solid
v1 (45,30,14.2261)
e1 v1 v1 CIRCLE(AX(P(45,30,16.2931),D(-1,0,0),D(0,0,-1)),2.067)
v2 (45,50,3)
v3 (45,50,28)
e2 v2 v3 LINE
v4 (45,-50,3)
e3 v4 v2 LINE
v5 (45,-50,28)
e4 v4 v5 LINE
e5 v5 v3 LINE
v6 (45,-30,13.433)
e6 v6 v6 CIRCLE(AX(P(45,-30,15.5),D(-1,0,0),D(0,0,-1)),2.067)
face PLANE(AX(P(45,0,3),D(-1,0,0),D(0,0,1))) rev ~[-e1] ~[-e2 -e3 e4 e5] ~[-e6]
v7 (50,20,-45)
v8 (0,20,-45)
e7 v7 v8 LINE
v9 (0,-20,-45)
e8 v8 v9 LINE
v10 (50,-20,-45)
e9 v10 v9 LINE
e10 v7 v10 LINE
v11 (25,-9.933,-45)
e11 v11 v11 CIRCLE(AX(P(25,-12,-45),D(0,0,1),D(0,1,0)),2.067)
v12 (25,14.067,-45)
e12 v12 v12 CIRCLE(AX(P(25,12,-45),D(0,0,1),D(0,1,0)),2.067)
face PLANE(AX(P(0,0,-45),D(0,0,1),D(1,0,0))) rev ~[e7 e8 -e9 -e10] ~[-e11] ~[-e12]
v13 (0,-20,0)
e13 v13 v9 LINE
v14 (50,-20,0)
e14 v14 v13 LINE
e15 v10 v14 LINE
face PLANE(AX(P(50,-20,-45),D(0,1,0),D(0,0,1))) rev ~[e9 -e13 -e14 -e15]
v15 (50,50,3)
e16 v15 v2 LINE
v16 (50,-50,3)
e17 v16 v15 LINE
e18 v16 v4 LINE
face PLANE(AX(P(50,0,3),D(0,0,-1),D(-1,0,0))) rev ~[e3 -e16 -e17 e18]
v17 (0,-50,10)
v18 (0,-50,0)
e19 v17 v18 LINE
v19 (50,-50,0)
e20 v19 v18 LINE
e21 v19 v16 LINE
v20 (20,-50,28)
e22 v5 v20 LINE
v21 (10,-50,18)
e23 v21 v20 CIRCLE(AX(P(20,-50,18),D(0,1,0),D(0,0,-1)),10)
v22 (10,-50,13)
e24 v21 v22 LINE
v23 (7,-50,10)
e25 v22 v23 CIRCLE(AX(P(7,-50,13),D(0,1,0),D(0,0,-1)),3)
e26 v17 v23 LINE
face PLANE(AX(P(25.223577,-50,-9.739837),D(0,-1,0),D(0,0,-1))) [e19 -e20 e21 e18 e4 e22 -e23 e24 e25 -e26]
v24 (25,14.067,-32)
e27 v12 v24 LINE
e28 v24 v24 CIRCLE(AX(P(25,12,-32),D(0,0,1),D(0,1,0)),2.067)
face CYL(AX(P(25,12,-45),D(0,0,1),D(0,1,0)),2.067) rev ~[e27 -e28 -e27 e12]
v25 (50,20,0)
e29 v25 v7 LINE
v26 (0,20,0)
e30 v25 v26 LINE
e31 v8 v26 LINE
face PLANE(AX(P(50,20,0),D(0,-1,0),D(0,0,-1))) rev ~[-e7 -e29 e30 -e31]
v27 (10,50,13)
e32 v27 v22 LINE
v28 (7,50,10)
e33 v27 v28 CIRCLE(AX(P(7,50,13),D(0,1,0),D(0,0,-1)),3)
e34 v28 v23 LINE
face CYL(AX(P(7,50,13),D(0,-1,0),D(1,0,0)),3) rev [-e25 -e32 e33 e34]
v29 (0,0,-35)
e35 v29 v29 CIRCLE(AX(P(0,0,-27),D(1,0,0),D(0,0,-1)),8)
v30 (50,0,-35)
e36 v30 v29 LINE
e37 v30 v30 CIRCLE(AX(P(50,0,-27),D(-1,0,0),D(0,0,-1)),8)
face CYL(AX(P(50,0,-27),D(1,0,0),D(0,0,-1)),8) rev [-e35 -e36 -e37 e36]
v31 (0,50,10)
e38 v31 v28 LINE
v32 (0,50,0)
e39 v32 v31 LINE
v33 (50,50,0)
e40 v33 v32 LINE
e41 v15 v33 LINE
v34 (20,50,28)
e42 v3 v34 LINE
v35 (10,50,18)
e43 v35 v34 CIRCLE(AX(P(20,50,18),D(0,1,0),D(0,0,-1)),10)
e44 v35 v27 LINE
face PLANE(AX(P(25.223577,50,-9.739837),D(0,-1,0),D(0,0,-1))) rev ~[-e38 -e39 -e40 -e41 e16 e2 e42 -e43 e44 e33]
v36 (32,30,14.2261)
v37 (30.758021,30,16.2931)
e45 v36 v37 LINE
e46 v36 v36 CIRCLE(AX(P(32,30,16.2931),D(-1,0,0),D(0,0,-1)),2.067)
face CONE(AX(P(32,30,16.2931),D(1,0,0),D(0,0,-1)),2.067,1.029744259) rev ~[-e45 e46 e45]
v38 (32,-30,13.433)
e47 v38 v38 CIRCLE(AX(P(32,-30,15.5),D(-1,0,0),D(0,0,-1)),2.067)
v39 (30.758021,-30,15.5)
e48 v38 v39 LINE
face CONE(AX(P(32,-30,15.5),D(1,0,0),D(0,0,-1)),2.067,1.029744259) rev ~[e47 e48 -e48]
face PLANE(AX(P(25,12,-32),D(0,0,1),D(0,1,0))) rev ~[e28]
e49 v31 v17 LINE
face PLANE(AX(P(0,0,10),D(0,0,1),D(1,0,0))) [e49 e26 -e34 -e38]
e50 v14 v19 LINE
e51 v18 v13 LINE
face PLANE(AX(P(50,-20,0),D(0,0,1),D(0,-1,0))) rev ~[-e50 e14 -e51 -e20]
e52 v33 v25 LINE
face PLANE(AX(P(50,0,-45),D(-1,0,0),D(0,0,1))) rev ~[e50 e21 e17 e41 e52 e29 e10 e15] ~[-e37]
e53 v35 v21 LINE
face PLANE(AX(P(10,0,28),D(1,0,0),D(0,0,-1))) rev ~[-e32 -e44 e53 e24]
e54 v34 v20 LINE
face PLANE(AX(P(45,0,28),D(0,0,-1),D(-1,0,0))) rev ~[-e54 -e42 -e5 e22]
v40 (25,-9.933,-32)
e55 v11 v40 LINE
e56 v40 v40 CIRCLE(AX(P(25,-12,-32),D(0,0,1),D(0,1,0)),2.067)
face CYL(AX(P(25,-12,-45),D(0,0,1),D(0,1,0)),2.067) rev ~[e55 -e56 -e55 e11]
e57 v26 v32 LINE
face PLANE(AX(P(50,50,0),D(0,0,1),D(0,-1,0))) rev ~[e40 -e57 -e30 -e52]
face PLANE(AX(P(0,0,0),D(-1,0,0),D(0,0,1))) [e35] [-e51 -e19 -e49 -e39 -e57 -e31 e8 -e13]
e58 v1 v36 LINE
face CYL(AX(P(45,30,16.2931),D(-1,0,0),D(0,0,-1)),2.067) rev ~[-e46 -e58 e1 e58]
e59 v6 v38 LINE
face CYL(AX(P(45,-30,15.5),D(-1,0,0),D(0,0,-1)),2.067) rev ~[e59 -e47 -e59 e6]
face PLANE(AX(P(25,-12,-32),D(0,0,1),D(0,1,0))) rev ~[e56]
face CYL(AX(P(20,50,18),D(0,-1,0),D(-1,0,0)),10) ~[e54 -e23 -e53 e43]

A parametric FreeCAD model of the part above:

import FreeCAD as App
import Part
import Sketcher
from FreeCAD import Vector
Q = App.Units.Quantity


def edges_at(feature, points):
    """Names of the edges that pass closest to the given points."""
    edges = feature.Shape.Edges
    near = lambda p: min(range(len(edges)), key=lambda i: edges[i].distToShape(Part.Vertex(*p))[0])
    return sorted({f"Edge{near(p) + 1}" for p in points})

doc = App.newDocument("Part")
body = doc.addObject("PartDesign::Body", "Body")

# Sketch on XZ plane
sketch1 = body.newObject("Sketcher::SketchObject", "Sketch")
sketch1.AttachmentSupport = (doc.getObject("XZ_Plane"), [""])
sketch1.MapMode = "FlatFace"
sketch1.addGeometry(Part.LineSegment(Vector(45, 3, 0), Vector(45, 28, 0)), False)
sketch1.addGeometry(Part.LineSegment(Vector(45, 28, 0), Vector(10, 28, 0)), False)
sketch1.addGeometry(Part.LineSegment(Vector(10, 28, 0), Vector(10, 10, 0)), False)
sketch1.addGeometry(Part.LineSegment(Vector(10, 10, 0), Vector(0, 10, 0)), False)
sketch1.addGeometry(Part.LineSegment(Vector(0, 10, 0), Vector(0, -45, 0)), False)
sketch1.addGeometry(Part.LineSegment(Vector(0, -45, 0), Vector(50, -45, 0)), False)
sketch1.addGeometry(Part.LineSegment(Vector(50, -45, 0), Vector(50, 3, 0)), False)
sketch1.addGeometry(Part.LineSegment(Vector(50, 3, 0), Vector(45, 3, 0)), False)
sketch1.addConstraint(Sketcher.Constraint("Coincident", 0, 2, 1, 1))
sketch1.addConstraint(Sketcher.Constraint("Coincident", 1, 2, 2, 1))
sketch1.addConstraint(Sketcher.Constraint("Coincident", 2, 2, 3, 1))
sketch1.addConstraint(Sketcher.Constraint("Coincident", 3, 2, 4, 1))
sketch1.addConstraint(Sketcher.Constraint("Coincident", 4, 2, 5, 1))
sketch1.addConstraint(Sketcher.Constraint("Coincident", 5, 2, 6, 1))
sketch1.addConstraint(Sketcher.Constraint("Coincident", 6, 2, 7, 1))
sketch1.addConstraint(Sketcher.Constraint("Coincident", 7, 2, 0, 1))
sketch1.addConstraint(Sketcher.Constraint("Vertical", 0))
sketch1.addConstraint(Sketcher.Constraint("Horizontal", 1))
sketch1.addConstraint(Sketcher.Constraint("Vertical", 2))
sketch1.addConstraint(Sketcher.Constraint("Horizontal", 3))
sketch1.addConstraint(Sketcher.Constraint("Vertical", 4))
sketch1.addConstraint(Sketcher.Constraint("Horizontal", 5))
sketch1.addConstraint(Sketcher.Constraint("Vertical", 6))
sketch1.addConstraint(Sketcher.Constraint("Horizontal", 7))
sketch1.addConstraint(Sketcher.Constraint("PointOnObject", 3, 2, -2))
sketch1.addConstraint(Sketcher.Constraint("DistanceX", 1, 2, 1, 1, Q("35 mm")))
sketch1.addConstraint(Sketcher.Constraint("DistanceX", 3, 2, 3, 1, Q("10 mm")))
sketch1.addConstraint(Sketcher.Constraint("DistanceX", 5, 1, 5, 2, Q("50 mm")))
sketch1.addConstraint(Sketcher.Constraint("DistanceY", 0, 1, 0, 2, Q("25 mm")))
sketch1.addConstraint(Sketcher.Constraint("DistanceY", 2, 2, 2, 1, Q("18 mm")))
sketch1.addConstraint(Sketcher.Constraint("DistanceY", 4, 2, 4, 1, Q("55 mm")))
sketch1.addConstraint(Sketcher.Constraint("DistanceY", -1, 1, 0, 2, Q("28 mm")))
pad1 = body.newObject("PartDesign::Pad", "Pad")
pad1.Profile = sketch1
pad1.Length = 100
pad1.Midplane = True

# Sketch on YZ plane
sketch2 = body.newObject("Sketcher::SketchObject", "Sketch001")
sketch2.AttachmentSupport = (doc.getObject("YZ_Plane"), [""])
sketch2.MapMode = "FlatFace"
sketch2.AttachmentOffset = App.Placement(Vector(0, 0, 50), App.Rotation())
sketch2.addGeometry(Part.Circle(Vector(0, -27, 0), Vector(0, 0, 1), 8), False)
sketch2.addConstraint(Sketcher.Constraint("PointOnObject", 0, 3, -2))
sketch2.addConstraint(Sketcher.Constraint("Diameter", 0, Q("16 mm")))
sketch2.addConstraint(Sketcher.Constraint("DistanceY", 0, 3, -1, 1, Q("27 mm")))
doc.recompute()
hole = body.newObject("PartDesign::Hole", "Hole")
hole.Profile = sketch2
hole.ThreadType = "None"
hole.Diameter = 16
hole.DepthType = "ThroughAll"

# Sketch on YZ plane
sketch3 = body.newObject("Sketcher::SketchObject", "Sketch002")
sketch3.AttachmentSupport = (doc.getObject("YZ_Plane"), [""])
sketch3.MapMode = "FlatFace"
sketch3.AttachmentOffset = App.Placement(Vector(0, 0, 50), App.Rotation())
sketch3.addGeometry(Part.LineSegment(Vector(-50, -45, 0), Vector(-20, -45, 0)), False)
sketch3.addGeometry(Part.LineSegment(Vector(-20, -45, 0), Vector(-20, 0, 0)), False)
sketch3.addGeometry(Part.LineSegment(Vector(-20, 0, 0), Vector(-50, 0, 0)), False)
sketch3.addGeometry(Part.LineSegment(Vector(-50, 0, 0), Vector(-50, -45, 0)), False)
sketch3.addGeometry(Part.LineSegment(Vector(50, 0, 0), Vector(20, 0, 0)), False)
sketch3.addGeometry(Part.LineSegment(Vector(20, 0, 0), Vector(20, -45, 0)), False)
sketch3.addGeometry(Part.LineSegment(Vector(20, -45, 0), Vector(50, -45, 0)), False)
sketch3.addGeometry(Part.LineSegment(Vector(50, -45, 0), Vector(50, 0, 0)), False)
sketch3.addConstraint(Sketcher.Constraint("Coincident", 0, 2, 1, 1))
sketch3.addConstraint(Sketcher.Constraint("Coincident", 1, 2, 2, 1))
sketch3.addConstraint(Sketcher.Constraint("Coincident", 2, 2, 3, 1))
sketch3.addConstraint(Sketcher.Constraint("Coincident", 3, 2, 0, 1))
sketch3.addConstraint(Sketcher.Constraint("Coincident", 4, 2, 5, 1))
sketch3.addConstraint(Sketcher.Constraint("Coincident", 5, 2, 6, 1))
sketch3.addConstraint(Sketcher.Constraint("Coincident", 6, 2, 7, 1))
sketch3.addConstraint(Sketcher.Constraint("Coincident", 7, 2, 4, 1))
sketch3.addConstraint(Sketcher.Constraint("Horizontal", 0))
sketch3.addConstraint(Sketcher.Constraint("Vertical", 1))
sketch3.addConstraint(Sketcher.Constraint("Horizontal", 2))
sketch3.addConstraint(Sketcher.Constraint("Vertical", 3))
sketch3.addConstraint(Sketcher.Constraint("Horizontal", 4))
sketch3.addConstraint(Sketcher.Constraint("Vertical", 5))
sketch3.addConstraint(Sketcher.Constraint("Horizontal", 6))
sketch3.addConstraint(Sketcher.Constraint("Vertical", 7))
sketch3.addConstraint(Sketcher.Constraint("Symmetric", 1, 2, 4, 2, -1, 1))
sketch3.addConstraint(Sketcher.Constraint("Symmetric", 3, 2, 6, 2, -2))
sketch3.addConstraint(Sketcher.Constraint("PointOnObject", 1, 2, -1))
sketch3.addConstraint(Sketcher.Constraint("DistanceX", 0, 1, 0, 2, Q("30 mm")))
sketch3.addConstraint(Sketcher.Constraint("DistanceY", 1, 1, 1, 2, Q("45 mm")))
sketch3.addConstraint(Sketcher.Constraint("DistanceX", 0, 2, -1, 1, Q("20 mm")))
pocket1 = body.newObject("PartDesign::Pocket", "Pocket")
pocket1.Profile = sketch3
pocket1.Type = "ThroughAll"
doc.recompute()

fillet = body.newObject("PartDesign::Fillet", "Fillet")
fillet.Base = (pocket1, edges_at(pocket1, [(10, 0, 10)]))
fillet.Radius = 3
doc.recompute()

fillet2 = body.newObject("PartDesign::Fillet", "Fillet001")
fillet2.Base = (fillet, edges_at(fillet, [(10, 0, 28)]))
fillet2.Radius = 10

# Sketch on YZ plane
sketch4 = body.newObject("Sketcher::SketchObject", "Sketch003")
sketch4.AttachmentSupport = (doc.getObject("YZ_Plane"), [""])
sketch4.MapMode = "FlatFace"
sketch4.AttachmentOffset = App.Placement(Vector(0, 0, 45), App.Rotation())
sketch4.addGeometry(Part.Circle(Vector(-30, 15.5, 0), Vector(0, 0, 1), 2.1), False)
sketch4.addConstraint(Sketcher.Constraint("Diameter", 0, Q("4.134 mm")))
sketch4.addConstraint(Sketcher.Constraint("DistanceX", 0, 3, -1, 1, Q("30 mm")))
sketch4.addConstraint(Sketcher.Constraint("DistanceY", -1, 1, 0, 3, Q("15.5 mm")))
doc.recompute()
hole2 = body.newObject("PartDesign::Hole", "Hole001")
hole2.Profile = sketch4
hole2.ThreadType = "None"
hole2.Diameter = 4.134
hole2.DepthType = "Dimension"
hole2.Depth = 13
hole2.DrillPoint = "Angled"
hole2.DrillPointAngle = 118

# Sketch on YZ plane
sketch5 = body.newObject("Sketcher::SketchObject", "Sketch004")
sketch5.AttachmentSupport = (doc.getObject("YZ_Plane"), [""])
sketch5.MapMode = "FlatFace"
sketch5.AttachmentOffset = App.Placement(Vector(0, 0, 45), App.Rotation())
sketch5.addGeometry(Part.Circle(Vector(30, 16.3, 0), Vector(0, 0, 1), 2.1), False)
sketch5.addConstraint(Sketcher.Constraint("Diameter", 0, Q("4.134 mm")))
sketch5.addConstraint(Sketcher.Constraint("DistanceX", -1, 1, 0, 3, Q("30 mm")))
sketch5.addConstraint(Sketcher.Constraint("DistanceY", -1, 1, 0, 3, Q("16.293 mm")))
doc.recompute()
hole3 = body.newObject("PartDesign::Hole", "Hole002")
hole3.Profile = sketch5
hole3.ThreadType = "None"
hole3.Diameter = 4.134
hole3.DepthType = "Dimension"
hole3.Depth = 13
hole3.DrillPoint = "Angled"
hole3.DrillPointAngle = 118

# Sketch on XY plane
sketch6 = body.newObject("Sketcher::SketchObject", "Sketch005")
sketch6.AttachmentSupport = (doc.getObject("XY_Plane"), [""])
sketch6.MapMode = "FlatFace"
sketch6.AttachmentOffset = App.Placement(Vector(0, 0, -45), App.Rotation())
sketch6.addGeometry(Part.Circle(Vector(25, 12, 0), Vector(0, 0, 1), 2.1), False)
sketch6.addConstraint(Sketcher.Constraint("Diameter", 0, Q("4.134 mm")))
sketch6.addConstraint(Sketcher.Constraint("DistanceX", -1, 1, 0, 3, Q("25 mm")))
sketch6.addConstraint(Sketcher.Constraint("DistanceY", -1, 1, 0, 3, Q("12 mm")))
doc.recompute()
hole4 = body.newObject("PartDesign::Hole", "Hole003")
hole4.Profile = sketch6
hole4.ThreadType = "None"
hole4.Diameter = 4.134
hole4.DepthType = "Dimension"
hole4.Depth = 13
hole4.DrillPoint = "Flat"
hole4.Reversed = True

# Sketch on XY plane
sketch7 = body.newObject("Sketcher::SketchObject", "Sketch006")
sketch7.AttachmentSupport = (doc.getObject("XY_Plane"), [""])
sketch7.MapMode = "FlatFace"
sketch7.AttachmentOffset = App.Placement(Vector(0, 0, -45), App.Rotation())
sketch7.addGeometry(Part.Circle(Vector(25, -12, 0), Vector(0, 0, 1), 2.1), False)
sketch7.addConstraint(Sketcher.Constraint("Diameter", 0, Q("4.134 mm")))
sketch7.addConstraint(Sketcher.Constraint("DistanceX", -1, 1, 0, 3, Q("25 mm")))
sketch7.addConstraint(Sketcher.Constraint("DistanceY", 0, 3, -1, 1, Q("12 mm")))
doc.recompute()
hole5 = body.newObject("PartDesign::Hole", "Hole004")
hole5.Profile = sketch7
hole5.ThreadType = "None"
hole5.Diameter = 4.134
hole5.DepthType = "Dimension"
hole5.Depth = 13
hole5.DrillPoint = "Flat"
hole5.Reversed = True

doc.recompute()
